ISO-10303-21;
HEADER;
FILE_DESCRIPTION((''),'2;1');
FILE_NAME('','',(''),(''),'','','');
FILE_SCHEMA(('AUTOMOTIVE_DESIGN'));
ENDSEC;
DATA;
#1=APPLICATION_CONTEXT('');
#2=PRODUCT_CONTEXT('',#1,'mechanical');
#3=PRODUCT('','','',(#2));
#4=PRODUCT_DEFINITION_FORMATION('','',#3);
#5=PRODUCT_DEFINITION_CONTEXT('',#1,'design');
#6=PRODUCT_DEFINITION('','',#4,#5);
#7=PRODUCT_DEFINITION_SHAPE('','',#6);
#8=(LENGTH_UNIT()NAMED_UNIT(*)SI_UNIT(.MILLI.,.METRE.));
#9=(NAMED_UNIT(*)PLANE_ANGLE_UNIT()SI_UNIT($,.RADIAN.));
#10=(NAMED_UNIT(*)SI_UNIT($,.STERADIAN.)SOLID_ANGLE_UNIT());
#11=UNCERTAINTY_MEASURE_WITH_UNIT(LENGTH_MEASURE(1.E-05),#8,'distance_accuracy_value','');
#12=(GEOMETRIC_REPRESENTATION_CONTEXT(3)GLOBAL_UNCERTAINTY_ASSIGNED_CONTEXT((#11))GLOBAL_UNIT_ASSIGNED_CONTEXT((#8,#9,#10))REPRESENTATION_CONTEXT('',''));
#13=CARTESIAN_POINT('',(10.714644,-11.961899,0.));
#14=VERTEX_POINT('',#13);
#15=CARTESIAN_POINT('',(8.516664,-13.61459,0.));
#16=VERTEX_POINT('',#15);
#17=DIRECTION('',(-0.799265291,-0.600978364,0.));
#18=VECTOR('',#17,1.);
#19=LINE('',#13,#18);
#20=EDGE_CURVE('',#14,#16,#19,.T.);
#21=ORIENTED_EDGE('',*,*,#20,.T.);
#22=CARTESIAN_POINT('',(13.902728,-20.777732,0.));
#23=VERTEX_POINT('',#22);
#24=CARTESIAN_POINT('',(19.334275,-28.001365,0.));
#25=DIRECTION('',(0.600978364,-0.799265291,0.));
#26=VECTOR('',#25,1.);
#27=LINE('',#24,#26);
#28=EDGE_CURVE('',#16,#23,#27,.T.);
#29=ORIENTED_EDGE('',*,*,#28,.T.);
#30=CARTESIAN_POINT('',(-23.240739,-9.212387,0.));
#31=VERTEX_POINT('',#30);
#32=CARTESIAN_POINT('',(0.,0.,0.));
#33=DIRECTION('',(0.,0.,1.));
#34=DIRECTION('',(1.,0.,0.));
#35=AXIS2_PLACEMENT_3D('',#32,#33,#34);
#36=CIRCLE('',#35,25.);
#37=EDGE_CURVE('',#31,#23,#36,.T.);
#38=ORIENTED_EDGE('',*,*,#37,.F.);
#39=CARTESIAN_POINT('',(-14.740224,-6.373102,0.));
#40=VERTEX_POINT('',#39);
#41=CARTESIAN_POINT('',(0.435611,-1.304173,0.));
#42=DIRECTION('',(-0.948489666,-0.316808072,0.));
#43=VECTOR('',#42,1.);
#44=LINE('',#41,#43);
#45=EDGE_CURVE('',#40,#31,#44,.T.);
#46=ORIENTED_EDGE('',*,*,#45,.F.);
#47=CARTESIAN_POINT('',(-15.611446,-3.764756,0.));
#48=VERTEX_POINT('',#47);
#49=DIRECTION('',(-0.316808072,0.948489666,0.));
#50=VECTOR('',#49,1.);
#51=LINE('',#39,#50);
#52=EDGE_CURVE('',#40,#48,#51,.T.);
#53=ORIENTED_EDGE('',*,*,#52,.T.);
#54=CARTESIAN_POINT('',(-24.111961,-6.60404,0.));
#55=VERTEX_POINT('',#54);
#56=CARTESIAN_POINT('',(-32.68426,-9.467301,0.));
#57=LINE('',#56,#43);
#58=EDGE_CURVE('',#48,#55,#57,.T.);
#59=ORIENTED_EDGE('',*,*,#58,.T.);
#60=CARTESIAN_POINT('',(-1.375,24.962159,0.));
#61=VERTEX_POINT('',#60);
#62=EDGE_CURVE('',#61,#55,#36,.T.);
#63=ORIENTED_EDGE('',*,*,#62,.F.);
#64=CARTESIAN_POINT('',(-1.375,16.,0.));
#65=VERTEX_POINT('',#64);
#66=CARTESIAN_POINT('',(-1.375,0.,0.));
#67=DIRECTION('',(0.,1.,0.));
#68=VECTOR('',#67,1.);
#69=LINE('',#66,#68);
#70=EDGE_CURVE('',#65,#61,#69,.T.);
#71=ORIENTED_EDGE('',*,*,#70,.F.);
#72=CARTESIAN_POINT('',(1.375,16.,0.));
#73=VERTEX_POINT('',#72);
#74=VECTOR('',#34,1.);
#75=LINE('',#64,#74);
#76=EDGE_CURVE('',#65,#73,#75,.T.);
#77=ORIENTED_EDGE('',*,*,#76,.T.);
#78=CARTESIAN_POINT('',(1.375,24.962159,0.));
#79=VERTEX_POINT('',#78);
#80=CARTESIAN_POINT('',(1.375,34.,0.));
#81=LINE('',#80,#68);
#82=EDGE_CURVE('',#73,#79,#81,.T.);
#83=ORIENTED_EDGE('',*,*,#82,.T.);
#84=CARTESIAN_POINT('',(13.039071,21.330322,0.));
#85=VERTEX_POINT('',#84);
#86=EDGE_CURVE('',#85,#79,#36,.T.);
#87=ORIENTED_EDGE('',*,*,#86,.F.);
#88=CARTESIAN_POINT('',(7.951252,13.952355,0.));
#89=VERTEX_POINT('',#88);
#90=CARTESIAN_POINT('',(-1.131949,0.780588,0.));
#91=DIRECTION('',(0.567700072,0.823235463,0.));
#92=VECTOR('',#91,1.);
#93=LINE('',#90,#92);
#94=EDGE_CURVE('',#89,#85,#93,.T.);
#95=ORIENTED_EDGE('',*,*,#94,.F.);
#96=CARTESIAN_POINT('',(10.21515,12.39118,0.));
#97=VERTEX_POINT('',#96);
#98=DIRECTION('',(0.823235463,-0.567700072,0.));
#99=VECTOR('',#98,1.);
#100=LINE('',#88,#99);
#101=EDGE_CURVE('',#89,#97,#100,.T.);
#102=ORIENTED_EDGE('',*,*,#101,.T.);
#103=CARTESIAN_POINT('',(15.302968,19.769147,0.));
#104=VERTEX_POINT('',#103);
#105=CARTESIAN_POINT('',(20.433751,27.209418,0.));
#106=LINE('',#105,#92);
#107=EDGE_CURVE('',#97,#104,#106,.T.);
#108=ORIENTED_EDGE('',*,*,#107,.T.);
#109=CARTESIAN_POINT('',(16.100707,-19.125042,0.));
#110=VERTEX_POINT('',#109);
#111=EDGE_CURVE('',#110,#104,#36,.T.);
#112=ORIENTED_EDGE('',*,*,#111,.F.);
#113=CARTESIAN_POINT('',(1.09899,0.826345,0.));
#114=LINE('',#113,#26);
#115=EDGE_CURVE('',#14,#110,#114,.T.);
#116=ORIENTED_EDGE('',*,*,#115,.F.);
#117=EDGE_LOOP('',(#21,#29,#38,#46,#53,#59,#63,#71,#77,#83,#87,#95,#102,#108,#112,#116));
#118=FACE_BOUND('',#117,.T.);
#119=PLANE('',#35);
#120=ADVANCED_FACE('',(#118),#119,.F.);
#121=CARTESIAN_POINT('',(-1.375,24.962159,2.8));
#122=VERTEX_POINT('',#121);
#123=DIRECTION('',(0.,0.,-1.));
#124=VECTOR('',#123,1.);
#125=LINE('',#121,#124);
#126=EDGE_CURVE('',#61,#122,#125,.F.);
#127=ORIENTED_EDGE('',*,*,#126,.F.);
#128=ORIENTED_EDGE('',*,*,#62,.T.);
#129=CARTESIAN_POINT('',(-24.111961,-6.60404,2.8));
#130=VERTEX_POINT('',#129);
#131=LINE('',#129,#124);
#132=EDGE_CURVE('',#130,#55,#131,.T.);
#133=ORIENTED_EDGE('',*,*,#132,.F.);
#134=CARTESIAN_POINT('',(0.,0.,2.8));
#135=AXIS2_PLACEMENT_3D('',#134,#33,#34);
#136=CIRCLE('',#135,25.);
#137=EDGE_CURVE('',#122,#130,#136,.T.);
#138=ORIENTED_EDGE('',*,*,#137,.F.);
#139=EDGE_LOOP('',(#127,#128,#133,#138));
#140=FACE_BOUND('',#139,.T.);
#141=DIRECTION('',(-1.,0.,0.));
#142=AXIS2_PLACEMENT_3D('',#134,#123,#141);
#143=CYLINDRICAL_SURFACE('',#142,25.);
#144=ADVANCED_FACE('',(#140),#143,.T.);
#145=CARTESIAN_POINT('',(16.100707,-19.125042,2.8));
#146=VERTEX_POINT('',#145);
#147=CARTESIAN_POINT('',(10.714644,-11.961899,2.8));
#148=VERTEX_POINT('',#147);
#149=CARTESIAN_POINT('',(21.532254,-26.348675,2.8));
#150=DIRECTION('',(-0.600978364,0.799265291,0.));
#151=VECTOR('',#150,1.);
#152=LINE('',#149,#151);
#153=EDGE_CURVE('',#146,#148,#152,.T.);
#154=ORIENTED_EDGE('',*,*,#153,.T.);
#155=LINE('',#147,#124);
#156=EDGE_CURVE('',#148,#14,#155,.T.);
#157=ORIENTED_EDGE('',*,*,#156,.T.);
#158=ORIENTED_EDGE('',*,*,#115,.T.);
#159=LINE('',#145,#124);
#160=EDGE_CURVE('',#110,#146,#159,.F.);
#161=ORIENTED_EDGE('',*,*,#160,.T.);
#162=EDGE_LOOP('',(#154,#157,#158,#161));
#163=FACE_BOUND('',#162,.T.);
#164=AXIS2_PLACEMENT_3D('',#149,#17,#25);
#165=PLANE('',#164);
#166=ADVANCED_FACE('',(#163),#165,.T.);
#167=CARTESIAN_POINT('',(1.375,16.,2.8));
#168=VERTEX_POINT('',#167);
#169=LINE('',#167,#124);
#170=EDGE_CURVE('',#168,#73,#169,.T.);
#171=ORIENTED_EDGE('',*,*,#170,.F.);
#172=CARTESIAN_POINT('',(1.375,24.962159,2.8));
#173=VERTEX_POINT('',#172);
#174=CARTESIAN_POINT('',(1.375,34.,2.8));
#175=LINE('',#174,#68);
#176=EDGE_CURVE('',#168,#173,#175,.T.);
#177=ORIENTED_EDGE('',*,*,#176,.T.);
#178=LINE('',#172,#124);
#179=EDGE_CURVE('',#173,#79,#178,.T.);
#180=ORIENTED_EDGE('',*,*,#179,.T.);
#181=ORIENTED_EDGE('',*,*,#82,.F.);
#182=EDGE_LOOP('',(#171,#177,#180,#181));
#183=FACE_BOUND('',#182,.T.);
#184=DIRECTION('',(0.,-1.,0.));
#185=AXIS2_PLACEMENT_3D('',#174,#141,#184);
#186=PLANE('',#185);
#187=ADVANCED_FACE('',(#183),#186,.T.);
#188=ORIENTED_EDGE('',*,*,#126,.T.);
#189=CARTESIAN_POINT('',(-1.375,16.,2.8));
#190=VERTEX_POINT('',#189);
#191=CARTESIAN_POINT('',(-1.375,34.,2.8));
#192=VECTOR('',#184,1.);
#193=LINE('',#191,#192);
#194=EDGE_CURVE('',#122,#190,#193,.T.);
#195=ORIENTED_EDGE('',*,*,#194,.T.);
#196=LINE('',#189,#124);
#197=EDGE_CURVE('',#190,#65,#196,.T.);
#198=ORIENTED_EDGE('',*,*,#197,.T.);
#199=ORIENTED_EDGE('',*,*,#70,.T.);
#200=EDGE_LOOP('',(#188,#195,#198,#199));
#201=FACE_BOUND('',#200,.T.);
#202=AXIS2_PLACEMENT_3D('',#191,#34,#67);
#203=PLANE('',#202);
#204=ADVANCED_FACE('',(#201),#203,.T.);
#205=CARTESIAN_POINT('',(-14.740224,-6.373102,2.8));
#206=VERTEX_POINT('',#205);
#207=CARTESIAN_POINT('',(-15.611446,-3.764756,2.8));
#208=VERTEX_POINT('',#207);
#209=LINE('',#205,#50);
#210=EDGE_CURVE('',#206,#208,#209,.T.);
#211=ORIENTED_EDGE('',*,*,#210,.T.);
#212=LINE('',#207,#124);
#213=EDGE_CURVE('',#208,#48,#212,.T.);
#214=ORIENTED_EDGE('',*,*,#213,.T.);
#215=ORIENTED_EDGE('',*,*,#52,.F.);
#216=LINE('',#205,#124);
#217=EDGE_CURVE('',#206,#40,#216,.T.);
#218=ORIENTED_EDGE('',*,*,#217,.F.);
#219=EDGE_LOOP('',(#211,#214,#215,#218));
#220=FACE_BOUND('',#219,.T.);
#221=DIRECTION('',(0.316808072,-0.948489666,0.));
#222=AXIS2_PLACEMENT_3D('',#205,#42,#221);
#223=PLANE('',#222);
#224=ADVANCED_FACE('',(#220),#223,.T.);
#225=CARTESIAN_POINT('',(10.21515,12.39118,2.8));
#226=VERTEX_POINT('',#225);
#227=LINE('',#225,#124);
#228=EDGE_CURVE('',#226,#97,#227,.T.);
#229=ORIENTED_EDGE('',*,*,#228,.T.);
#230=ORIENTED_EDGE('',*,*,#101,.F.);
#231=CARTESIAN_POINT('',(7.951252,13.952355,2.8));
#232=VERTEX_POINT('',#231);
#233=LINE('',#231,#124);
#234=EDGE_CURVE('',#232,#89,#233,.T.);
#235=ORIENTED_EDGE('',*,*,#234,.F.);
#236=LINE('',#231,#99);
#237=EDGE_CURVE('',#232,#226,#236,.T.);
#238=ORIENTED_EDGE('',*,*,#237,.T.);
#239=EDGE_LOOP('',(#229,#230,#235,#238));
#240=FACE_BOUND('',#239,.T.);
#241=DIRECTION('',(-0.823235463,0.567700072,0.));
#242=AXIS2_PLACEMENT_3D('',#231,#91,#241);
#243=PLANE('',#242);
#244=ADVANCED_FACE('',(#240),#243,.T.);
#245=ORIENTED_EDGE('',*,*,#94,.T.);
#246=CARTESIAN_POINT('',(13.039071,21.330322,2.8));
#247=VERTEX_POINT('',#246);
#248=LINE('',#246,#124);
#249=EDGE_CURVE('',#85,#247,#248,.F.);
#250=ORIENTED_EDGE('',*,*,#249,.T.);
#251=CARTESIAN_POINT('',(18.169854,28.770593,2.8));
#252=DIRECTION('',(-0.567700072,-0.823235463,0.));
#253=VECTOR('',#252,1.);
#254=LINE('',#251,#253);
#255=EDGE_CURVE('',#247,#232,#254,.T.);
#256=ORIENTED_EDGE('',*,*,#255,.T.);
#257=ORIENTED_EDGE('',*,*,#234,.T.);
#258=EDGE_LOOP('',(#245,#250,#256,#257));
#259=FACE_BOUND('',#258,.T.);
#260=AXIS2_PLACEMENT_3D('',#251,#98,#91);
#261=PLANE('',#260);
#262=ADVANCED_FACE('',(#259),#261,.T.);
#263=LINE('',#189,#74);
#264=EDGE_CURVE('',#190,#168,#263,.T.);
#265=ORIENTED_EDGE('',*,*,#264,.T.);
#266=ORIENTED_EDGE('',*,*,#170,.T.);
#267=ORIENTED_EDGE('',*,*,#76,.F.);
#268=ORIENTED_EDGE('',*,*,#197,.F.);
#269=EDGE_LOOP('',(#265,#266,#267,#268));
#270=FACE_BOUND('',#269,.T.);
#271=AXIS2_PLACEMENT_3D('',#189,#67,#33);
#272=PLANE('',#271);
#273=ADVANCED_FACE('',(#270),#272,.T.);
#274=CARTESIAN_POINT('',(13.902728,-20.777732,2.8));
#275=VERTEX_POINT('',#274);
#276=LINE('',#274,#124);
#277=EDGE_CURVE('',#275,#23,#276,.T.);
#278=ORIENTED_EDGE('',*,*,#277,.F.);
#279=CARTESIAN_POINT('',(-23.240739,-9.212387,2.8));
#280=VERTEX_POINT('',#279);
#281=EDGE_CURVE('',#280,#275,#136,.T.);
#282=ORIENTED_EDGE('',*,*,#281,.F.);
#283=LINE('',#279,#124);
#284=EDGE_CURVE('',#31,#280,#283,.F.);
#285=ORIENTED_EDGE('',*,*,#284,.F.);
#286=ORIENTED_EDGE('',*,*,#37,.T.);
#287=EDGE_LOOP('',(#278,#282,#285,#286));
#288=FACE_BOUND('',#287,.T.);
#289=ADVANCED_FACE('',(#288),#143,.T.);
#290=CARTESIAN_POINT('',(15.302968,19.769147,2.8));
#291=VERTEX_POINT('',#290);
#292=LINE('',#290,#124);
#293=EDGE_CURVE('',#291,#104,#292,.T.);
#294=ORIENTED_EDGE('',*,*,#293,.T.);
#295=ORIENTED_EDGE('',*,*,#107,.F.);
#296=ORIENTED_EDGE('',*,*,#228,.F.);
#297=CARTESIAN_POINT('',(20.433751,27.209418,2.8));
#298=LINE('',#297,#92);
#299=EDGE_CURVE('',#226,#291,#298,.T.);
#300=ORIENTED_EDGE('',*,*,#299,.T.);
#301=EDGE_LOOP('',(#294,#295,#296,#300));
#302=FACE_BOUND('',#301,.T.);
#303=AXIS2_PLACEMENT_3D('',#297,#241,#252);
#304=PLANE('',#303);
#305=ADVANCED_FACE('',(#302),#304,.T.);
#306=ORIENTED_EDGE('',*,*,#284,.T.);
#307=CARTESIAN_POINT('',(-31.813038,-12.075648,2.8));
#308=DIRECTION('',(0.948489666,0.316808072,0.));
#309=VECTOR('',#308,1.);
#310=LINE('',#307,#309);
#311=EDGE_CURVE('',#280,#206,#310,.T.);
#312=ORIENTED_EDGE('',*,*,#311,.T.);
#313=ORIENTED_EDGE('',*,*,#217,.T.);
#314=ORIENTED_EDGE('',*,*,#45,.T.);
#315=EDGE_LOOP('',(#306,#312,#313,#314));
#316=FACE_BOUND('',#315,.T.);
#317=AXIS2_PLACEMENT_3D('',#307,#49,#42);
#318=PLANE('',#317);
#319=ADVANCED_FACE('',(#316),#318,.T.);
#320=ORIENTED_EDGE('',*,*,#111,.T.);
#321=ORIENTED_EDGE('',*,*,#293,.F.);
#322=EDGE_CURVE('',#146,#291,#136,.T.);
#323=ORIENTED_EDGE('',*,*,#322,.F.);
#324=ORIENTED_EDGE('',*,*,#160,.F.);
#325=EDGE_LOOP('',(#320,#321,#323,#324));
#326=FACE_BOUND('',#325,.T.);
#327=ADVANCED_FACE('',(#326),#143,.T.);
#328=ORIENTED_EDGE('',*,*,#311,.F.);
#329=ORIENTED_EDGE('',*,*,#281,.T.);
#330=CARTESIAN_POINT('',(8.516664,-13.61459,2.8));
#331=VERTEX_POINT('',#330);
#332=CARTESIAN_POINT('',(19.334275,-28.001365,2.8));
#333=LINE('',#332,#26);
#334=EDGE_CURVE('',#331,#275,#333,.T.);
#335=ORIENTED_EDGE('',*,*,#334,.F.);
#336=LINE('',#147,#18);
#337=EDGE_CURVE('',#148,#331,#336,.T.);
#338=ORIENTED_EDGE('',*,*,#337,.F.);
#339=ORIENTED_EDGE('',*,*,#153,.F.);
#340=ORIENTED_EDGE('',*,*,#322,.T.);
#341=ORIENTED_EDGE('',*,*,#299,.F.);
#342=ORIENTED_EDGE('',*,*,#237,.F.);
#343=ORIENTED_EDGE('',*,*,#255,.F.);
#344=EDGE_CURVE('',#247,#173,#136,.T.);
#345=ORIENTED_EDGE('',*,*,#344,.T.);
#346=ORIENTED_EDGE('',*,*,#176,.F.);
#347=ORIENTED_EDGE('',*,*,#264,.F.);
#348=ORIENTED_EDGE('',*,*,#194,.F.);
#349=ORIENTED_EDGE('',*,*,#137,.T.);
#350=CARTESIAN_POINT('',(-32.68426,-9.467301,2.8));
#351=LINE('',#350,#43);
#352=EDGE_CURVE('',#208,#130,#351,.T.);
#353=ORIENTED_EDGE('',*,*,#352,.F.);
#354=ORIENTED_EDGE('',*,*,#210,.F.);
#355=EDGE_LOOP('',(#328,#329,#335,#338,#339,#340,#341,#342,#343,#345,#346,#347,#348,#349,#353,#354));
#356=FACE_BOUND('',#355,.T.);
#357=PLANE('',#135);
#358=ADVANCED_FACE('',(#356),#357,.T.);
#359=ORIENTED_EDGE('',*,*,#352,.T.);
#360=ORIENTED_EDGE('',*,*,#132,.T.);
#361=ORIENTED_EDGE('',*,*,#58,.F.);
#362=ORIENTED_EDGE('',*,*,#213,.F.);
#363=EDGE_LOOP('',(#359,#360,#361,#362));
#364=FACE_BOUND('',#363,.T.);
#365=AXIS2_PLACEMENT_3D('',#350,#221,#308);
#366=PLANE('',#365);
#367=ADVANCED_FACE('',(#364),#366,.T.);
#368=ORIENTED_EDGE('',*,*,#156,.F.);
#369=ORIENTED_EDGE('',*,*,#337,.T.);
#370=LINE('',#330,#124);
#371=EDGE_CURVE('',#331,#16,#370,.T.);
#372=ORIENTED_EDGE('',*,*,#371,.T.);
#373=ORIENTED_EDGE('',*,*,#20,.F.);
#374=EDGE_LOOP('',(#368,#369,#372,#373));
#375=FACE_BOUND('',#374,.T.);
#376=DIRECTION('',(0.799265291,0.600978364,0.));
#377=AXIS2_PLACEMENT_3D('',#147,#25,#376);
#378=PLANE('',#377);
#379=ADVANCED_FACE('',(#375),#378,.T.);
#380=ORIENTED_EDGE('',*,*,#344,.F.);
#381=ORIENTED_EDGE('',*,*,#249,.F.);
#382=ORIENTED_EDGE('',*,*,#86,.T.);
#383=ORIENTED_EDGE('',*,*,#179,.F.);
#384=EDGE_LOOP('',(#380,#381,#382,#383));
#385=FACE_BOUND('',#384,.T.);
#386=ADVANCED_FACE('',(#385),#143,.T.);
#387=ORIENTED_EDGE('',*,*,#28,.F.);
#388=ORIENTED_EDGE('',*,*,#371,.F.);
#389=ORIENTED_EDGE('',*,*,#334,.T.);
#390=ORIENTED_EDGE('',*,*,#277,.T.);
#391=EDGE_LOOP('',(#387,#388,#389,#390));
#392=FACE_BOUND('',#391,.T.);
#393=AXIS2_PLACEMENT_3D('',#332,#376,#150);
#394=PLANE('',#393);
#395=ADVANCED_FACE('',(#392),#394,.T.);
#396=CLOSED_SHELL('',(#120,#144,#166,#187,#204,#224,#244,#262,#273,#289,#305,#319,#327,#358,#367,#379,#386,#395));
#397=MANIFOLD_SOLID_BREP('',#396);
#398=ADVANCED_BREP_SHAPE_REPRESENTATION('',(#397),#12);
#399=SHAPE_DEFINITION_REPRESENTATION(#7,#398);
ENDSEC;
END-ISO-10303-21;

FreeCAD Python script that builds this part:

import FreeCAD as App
import Part
import Sketcher

V = App.Vector
Q = App.Units.Quantity


def add_polygon(sketch, points):
    """Adds a closed chain of lines whose ends are joined by coincident constraints."""
    first, n = sketch.GeometryCount, len(points)
    for a, b in zip(points, points[1:] + points[:1]):
        sketch.addGeometry(Part.LineSegment(App.Vector(*a, 0), App.Vector(*b, 0)), False)
    for i in range(n):
        sketch.addConstraint(Sketcher.Constraint("Coincident", first + i, 2, first + (i + 1) % n, 1))

doc = App.newDocument("Part")
body = doc.addObject("PartDesign::Body", "Body")

# Sketch on XY plane
sketch1 = body.newObject("Sketcher::SketchObject", "Sketch")
sketch1.AttachmentSupport = (doc.getObject("XY_Plane"), [""])
sketch1.MapMode = "FlatFace"
sketch1.addGeometry(Part.Circle(V(0, 0, 0), V(0, 0, 1), 25), False)
sketch1.addConstraint([
    Sketcher.Constraint("Coincident", 0, 3, -1, 1),
    Sketcher.Constraint("Diameter", 0, Q("50 mm")),
])
pad1 = body.newObject("PartDesign::Pad", "Pad")
pad1.Profile = sketch1
pad1.Length = 2.8

# Sketch on XY plane
sketch2 = body.newObject("Sketcher::SketchObject", "Sketch001")
sketch2.AttachmentSupport = (doc.getObject("XY_Plane"), [""])
sketch2.MapMode = "FlatFace"
add_polygon(sketch2, [(-1.375, 34), (-1.375, 16), (1.375, 16), (1.375, 34)])  # lines 0-3
sketch2.addConstraint([
    Sketcher.Constraint("Vertical", 0),
    Sketcher.Constraint("Horizontal", 1),
    Sketcher.Constraint("Vertical", 2),
    Sketcher.Constraint("Horizontal", 3),
    Sketcher.Constraint("DistanceY", 0, 2, 0, 1, Q("18 mm")),
    Sketcher.Constraint("DistanceY", -1, 1, 0, 2, Q("16 mm")),
    Sketcher.Constraint("DistanceX", 1, 1, 1, 2, Q("2.75 mm")),
    Sketcher.Constraint("DistanceX", 0, 2, -1, 1, Q("1.375 mm")),
])
pocket1 = body.newObject("PartDesign::Pocket", "Pocket")
pocket1.Profile = sketch2
pocket1.Type = "ThroughAll"
pocket1.Reversed = True
doc.recompute()

polarpattern = body.newObject("PartDesign::PolarPattern", "PolarPattern")
polarpattern.Originals = [pocket1]
polarpattern.Axis = (doc.getObject("Z_Axis"), [""])
polarpattern.Angle = 325.41
polarpattern.Occurrences = 4
body.Tip = polarpattern

doc.recompute()
